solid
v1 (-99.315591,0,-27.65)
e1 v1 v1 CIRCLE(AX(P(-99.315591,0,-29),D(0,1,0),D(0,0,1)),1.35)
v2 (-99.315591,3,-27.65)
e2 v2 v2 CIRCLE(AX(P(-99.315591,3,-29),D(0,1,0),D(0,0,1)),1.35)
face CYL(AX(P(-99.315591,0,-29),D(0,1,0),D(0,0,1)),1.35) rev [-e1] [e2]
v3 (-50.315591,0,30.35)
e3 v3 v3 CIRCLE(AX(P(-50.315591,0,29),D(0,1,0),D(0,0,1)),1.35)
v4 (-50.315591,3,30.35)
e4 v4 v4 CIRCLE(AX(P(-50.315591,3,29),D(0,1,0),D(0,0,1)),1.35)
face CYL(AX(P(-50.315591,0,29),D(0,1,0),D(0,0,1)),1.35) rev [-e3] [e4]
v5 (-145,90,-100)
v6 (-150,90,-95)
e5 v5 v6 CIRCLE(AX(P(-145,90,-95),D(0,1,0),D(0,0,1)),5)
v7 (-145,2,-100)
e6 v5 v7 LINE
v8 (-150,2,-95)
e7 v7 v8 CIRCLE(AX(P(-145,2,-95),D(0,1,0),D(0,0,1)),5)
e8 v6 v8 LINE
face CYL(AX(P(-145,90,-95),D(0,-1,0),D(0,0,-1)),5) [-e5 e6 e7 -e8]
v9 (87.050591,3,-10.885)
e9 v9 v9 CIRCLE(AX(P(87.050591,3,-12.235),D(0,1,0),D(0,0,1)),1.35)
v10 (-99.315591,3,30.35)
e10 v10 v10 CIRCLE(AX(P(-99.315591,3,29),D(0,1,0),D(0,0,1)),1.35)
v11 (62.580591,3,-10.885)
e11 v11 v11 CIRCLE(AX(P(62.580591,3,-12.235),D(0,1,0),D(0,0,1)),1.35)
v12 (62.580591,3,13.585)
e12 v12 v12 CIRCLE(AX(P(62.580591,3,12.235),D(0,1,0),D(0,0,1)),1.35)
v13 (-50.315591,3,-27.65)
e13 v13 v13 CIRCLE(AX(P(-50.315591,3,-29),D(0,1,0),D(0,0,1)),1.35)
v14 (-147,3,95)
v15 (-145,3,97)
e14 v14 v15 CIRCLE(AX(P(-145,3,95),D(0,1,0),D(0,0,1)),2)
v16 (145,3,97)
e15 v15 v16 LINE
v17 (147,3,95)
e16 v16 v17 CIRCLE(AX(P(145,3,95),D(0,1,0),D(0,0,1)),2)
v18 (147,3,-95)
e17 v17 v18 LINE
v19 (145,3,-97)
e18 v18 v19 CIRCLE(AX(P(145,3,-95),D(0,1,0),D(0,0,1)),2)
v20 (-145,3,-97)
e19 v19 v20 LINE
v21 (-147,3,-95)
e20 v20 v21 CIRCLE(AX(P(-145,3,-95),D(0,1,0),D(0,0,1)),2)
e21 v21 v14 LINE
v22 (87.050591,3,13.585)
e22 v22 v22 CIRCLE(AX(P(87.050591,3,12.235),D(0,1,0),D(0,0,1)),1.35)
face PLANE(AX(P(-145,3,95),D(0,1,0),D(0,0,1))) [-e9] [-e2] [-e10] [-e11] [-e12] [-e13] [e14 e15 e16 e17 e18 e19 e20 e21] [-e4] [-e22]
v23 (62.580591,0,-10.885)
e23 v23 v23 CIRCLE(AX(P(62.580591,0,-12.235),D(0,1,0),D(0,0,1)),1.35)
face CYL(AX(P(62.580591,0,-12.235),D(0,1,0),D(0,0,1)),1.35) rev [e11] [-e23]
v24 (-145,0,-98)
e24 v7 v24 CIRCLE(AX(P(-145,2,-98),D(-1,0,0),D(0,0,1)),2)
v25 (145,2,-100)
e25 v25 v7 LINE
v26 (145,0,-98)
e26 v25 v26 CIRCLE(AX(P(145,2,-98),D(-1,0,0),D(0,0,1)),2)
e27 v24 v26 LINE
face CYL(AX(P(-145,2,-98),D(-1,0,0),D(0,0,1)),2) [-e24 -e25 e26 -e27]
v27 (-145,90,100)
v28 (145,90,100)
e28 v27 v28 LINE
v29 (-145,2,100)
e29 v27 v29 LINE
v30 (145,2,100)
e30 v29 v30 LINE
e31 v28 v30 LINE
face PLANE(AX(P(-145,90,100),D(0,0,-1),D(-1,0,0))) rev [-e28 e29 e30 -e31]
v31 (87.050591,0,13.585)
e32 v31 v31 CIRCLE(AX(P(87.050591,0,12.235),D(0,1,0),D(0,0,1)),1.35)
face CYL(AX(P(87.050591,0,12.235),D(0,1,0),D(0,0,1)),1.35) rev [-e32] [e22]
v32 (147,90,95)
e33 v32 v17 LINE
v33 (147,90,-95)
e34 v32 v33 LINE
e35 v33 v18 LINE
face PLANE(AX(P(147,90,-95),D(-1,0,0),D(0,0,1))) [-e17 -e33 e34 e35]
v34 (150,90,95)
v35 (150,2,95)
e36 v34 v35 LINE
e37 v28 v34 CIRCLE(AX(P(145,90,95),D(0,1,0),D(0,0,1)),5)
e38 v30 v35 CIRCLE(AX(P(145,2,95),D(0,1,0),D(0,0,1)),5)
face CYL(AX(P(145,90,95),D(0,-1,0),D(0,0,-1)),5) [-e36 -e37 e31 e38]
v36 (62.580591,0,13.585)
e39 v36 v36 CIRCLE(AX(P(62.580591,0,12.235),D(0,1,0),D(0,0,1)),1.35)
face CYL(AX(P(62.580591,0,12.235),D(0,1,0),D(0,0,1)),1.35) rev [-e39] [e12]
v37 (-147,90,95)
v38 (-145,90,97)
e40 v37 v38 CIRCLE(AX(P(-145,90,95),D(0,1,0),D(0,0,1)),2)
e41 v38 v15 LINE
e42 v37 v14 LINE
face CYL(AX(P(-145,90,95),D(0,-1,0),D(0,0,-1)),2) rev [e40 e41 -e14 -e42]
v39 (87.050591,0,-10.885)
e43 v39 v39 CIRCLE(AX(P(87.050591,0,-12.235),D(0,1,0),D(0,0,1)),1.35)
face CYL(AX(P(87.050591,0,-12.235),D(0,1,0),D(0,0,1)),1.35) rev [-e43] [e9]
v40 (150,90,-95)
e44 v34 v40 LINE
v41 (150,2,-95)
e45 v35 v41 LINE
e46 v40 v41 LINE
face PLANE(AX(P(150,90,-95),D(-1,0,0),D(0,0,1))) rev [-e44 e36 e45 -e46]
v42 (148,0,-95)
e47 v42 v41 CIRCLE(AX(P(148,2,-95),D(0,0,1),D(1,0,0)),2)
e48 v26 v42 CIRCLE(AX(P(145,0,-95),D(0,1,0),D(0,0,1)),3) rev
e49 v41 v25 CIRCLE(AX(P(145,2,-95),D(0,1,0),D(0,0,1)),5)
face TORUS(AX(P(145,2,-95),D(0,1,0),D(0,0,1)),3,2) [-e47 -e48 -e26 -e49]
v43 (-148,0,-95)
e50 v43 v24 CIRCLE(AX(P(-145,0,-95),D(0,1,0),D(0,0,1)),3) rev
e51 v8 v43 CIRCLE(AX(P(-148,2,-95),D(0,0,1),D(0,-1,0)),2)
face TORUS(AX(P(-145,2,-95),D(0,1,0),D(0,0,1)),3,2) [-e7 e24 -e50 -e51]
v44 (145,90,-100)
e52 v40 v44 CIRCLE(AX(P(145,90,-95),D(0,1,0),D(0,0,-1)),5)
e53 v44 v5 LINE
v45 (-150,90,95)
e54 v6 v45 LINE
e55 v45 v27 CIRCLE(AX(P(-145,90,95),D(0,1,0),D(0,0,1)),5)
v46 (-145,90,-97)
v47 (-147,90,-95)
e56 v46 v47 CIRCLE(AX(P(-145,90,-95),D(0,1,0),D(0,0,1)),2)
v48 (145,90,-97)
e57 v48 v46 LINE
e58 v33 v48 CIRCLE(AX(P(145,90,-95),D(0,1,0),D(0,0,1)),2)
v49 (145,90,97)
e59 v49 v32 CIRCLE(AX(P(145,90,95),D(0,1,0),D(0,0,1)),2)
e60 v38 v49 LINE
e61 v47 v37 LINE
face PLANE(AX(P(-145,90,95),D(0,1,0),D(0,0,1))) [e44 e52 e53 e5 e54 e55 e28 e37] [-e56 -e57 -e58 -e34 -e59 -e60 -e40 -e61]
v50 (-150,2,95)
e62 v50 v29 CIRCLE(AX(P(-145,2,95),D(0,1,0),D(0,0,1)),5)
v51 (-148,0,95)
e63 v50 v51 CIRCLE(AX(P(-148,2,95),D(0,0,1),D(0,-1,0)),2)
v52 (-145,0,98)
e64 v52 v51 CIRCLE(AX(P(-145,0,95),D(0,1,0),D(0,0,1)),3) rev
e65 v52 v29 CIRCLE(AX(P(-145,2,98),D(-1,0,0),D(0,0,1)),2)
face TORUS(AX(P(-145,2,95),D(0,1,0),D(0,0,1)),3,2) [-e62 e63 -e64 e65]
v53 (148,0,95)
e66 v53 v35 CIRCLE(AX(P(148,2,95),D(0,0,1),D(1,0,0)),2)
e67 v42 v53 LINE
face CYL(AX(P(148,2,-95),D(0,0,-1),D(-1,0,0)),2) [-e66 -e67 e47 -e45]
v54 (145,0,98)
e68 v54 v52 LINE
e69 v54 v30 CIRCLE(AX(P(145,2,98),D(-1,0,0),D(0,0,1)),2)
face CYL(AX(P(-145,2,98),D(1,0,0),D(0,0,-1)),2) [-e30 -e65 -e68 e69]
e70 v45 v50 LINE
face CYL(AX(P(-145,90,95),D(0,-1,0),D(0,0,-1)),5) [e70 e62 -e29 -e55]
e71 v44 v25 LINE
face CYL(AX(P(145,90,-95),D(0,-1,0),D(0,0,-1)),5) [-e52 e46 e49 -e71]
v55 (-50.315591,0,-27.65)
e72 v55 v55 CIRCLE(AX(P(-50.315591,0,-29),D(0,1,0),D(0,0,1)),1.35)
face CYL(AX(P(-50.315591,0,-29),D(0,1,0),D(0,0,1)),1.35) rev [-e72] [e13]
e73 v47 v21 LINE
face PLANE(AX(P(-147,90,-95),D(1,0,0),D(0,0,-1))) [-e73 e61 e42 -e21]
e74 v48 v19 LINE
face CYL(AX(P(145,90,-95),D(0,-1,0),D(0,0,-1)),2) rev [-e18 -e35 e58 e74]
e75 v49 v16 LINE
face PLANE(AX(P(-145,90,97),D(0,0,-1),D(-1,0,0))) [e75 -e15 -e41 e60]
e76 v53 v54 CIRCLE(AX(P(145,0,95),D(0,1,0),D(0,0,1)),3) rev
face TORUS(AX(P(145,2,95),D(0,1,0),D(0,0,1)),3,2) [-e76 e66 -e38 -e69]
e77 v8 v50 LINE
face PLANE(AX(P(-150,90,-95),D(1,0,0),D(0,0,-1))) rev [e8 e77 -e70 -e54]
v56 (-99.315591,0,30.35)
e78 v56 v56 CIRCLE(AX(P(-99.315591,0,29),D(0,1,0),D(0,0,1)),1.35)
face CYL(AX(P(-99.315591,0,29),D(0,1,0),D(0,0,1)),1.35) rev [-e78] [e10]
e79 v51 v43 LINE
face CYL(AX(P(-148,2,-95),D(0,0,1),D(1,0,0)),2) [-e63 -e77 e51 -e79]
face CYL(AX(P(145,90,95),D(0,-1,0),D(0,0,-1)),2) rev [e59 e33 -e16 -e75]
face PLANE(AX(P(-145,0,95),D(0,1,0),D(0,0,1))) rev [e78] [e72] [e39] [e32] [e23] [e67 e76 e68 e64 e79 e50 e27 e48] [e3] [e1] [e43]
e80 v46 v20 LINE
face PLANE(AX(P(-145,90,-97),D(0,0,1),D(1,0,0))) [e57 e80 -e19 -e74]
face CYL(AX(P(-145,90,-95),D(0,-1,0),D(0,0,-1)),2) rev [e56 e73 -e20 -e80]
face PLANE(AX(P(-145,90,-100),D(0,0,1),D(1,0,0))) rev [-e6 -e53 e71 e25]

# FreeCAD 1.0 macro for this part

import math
import FreeCAD as App
import Part
import Sketcher
from FreeCAD import Vector
Q = App.Units.Quantity


def edges_at(feature, points):
    """Names of the edges that pass closest to the given points."""
    edges = feature.Shape.Edges
    near = lambda p: min(range(len(edges)), key=lambda i: edges[i].distToShape(Part.Vertex(*p))[0])
    return sorted({f"Edge{near(p) + 1}" for p in points})


def faces_at(feature, points):
    """Names of the faces that lie closest to the given points."""
    faces = feature.Shape.Faces
    near = lambda p: min(range(len(faces)), key=lambda i: faces[i].distToShape(Part.Vertex(*p))[0])
    return sorted({f"Face{near(p) + 1}" for p in points})

doc = App.newDocument("Part")
body = doc.addObject("PartDesign::Body", "Body")

# Sketch on XZ plane
sketch1 = body.newObject("Sketcher::SketchObject", "Sketch")
sketch1.AttachmentSupport = (doc.getObject("XZ_Plane"), [""])
sketch1.MapMode = "FlatFace"
sketch1.addGeometry([
    Part.LineSegment(Vector(145, -100, 0), Vector(-145, -100, 0)),  # 0
    Part.ArcOfCircle(Part.Circle(Vector(-145, -95, 0), Vector(0, 0, 1), 5), math.radians(180), math.radians(270)),  # 1
    Part.LineSegment(Vector(-150, -95, 0), Vector(-150, 95, 0)),  # 2
    Part.ArcOfCircle(Part.Circle(Vector(-145, 95, 0), Vector(0, 0, 1), 5), math.radians(90), math.radians(180)),  # 3
    Part.LineSegment(Vector(-145, 100, 0), Vector(145, 100, 0)),  # 4
    Part.ArcOfCircle(Part.Circle(Vector(145, 95, 0), Vector(0, 0, 1), 5), math.radians(0), math.radians(90)),  # 5
    Part.LineSegment(Vector(150, 95, 0), Vector(150, -95, 0)),  # 6
    Part.ArcOfCircle(Part.Circle(Vector(145, -95, 0), Vector(0, 0, 1), 5), math.radians(-90), math.radians(0)),  # 7
], False)
sketch1.addConstraint([
    Sketcher.Constraint("Tangent", 0, 2, 1, 2),
    Sketcher.Constraint("Tangent", 1, 1, 2, 1),
    Sketcher.Constraint("Tangent", 2, 2, 3, 2),
    Sketcher.Constraint("Tangent", 3, 1, 4, 1),
    Sketcher.Constraint("Tangent", 4, 2, 5, 2),
    Sketcher.Constraint("Tangent", 5, 1, 6, 1),
    Sketcher.Constraint("Tangent", 6, 2, 7, 2),
    Sketcher.Constraint("Tangent", 7, 1, 0, 1),
    Sketcher.Constraint("Horizontal", 0),
    Sketcher.Constraint("Vertical", 2),
    Sketcher.Constraint("Horizontal", 4),
    Sketcher.Constraint("Vertical", 6),
    Sketcher.Constraint("Equal", 1, 3),
    Sketcher.Constraint("Equal", 3, 5),
    Sketcher.Constraint("Equal", 5, 7),
    Sketcher.Constraint("Symmetric", 1, 3, 5, 3, -1, 1),
    Sketcher.Constraint("Radius", 1, Q("5 mm")),
    Sketcher.Constraint("DistanceX", 0, 2, 0, 1, Q("290 mm")),
    Sketcher.Constraint("DistanceY", 2, 1, 2, 2, Q("190 mm")),
])
pad1 = body.newObject("PartDesign::Pad", "Pad")
pad1.Profile = sketch1
pad1.Length = 90
pad1.Reversed = True
doc.recompute()

thickness = body.newObject("PartDesign::Thickness", "Thickness")
thickness.Base = (pad1, faces_at(pad1, [(0, 90, 0)]))
thickness.Value = 3
thickness.Reversed = True
thickness.Join = "Intersection"
doc.recompute()

fillet = body.newObject("PartDesign::Fillet", "Fillet")
fillet.Base = (thickness, edges_at(thickness, [
    (150, 0, 0),
    (148.536, 0, 98.536),
    (0, 0, 100),
    (-148.536, 0, 98.536),
    (-150, 0, 0),
    (-148.536, 0, -98.536),
    (0, 0, -100),
    (148.536, 0, -98.536),
]))
fillet.Radius = 2

# Sketch on XZ plane
sketch2 = body.newObject("Sketcher::SketchObject", "Sketch001")
sketch2.AttachmentSupport = (doc.getObject("XZ_Plane"), [""])
sketch2.MapMode = "FlatFace"
sketch2.AttachmentOffset = App.Placement(Vector(0, 0, -3), App.Rotation())
sketch2.addGeometry([
    Part.Circle(Vector(-99.3, 29, 0), Vector(0, 0, 1), 1.4),  # 0
    Part.Circle(Vector(-50.3, 29, 0), Vector(0, 0, 1), 1.4),  # 1
    Part.Circle(Vector(-50.3, -29, 0), Vector(0, 0, 1), 1.4),  # 2
    Part.Circle(Vector(-99.3, -29, 0), Vector(0, 0, 1), 1.4),  # 3
    Part.Circle(Vector(87.1, 12.2, 0), Vector(0, 0, 1), 1.4),  # 4
    Part.Circle(Vector(87.1, -12.2, 0), Vector(0, 0, 1), 1.4),  # 5
    Part.Circle(Vector(62.6, -12.2, 0), Vector(0, 0, 1), 1.4),  # 6
    Part.Circle(Vector(62.6, 12.2, 0), Vector(0, 0, 1), 1.4),  # 7
], False)
sketch2.addConstraint([
    Sketcher.Constraint("Equal", 0, 1),
    Sketcher.Constraint("Equal", 1, 2),
    Sketcher.Constraint("Equal", 2, 3),
    Sketcher.Constraint("Equal", 3, 4),
    Sketcher.Constraint("Equal", 4, 5),
    Sketcher.Constraint("Equal", 5, 6),
    Sketcher.Constraint("Equal", 6, 7),
    Sketcher.Constraint("Symmetric", 1, 3, 2, 3, -1),
    Sketcher.Constraint("Symmetric", 0, 3, 3, 3, -1),
    Sketcher.Constraint("Symmetric", 4, 3, 5, 3, -1),
    Sketcher.Constraint("Symmetric", 6, 3, 7, 3, -1),
    Sketcher.Constraint("Horizontal", 0, 3, 1, 3),
    Sketcher.Constraint("Horizontal", 5, 3, 6, 3),
    Sketcher.Constraint("Diameter", 0, Q("2.7 mm")),
    Sketcher.Constraint("DistanceY", -1, 1, 0, 3, Q("29 mm")),
    Sketcher.Constraint("DistanceX", 0, 3, 1, 3, Q("49 mm")),
    Sketcher.Constraint("DistanceY", 5, 3, 4, 3, Q("24.47 mm")),
    Sketcher.Constraint("DistanceX", 6, 3, 5, 3, Q("24.47 mm")),
    Sketcher.Constraint("DistanceX", 0, 3, -1, 1, Q("99.315591 mm")),
    Sketcher.Constraint("DistanceX", -1, 1, 4, 3, Q("87.050591 mm")),
])
pocket1 = body.newObject("PartDesign::Pocket", "Pocket")
pocket1.Profile = sketch2
pocket1.Length = 3
pocket1.Reversed = True

doc.recompute()
